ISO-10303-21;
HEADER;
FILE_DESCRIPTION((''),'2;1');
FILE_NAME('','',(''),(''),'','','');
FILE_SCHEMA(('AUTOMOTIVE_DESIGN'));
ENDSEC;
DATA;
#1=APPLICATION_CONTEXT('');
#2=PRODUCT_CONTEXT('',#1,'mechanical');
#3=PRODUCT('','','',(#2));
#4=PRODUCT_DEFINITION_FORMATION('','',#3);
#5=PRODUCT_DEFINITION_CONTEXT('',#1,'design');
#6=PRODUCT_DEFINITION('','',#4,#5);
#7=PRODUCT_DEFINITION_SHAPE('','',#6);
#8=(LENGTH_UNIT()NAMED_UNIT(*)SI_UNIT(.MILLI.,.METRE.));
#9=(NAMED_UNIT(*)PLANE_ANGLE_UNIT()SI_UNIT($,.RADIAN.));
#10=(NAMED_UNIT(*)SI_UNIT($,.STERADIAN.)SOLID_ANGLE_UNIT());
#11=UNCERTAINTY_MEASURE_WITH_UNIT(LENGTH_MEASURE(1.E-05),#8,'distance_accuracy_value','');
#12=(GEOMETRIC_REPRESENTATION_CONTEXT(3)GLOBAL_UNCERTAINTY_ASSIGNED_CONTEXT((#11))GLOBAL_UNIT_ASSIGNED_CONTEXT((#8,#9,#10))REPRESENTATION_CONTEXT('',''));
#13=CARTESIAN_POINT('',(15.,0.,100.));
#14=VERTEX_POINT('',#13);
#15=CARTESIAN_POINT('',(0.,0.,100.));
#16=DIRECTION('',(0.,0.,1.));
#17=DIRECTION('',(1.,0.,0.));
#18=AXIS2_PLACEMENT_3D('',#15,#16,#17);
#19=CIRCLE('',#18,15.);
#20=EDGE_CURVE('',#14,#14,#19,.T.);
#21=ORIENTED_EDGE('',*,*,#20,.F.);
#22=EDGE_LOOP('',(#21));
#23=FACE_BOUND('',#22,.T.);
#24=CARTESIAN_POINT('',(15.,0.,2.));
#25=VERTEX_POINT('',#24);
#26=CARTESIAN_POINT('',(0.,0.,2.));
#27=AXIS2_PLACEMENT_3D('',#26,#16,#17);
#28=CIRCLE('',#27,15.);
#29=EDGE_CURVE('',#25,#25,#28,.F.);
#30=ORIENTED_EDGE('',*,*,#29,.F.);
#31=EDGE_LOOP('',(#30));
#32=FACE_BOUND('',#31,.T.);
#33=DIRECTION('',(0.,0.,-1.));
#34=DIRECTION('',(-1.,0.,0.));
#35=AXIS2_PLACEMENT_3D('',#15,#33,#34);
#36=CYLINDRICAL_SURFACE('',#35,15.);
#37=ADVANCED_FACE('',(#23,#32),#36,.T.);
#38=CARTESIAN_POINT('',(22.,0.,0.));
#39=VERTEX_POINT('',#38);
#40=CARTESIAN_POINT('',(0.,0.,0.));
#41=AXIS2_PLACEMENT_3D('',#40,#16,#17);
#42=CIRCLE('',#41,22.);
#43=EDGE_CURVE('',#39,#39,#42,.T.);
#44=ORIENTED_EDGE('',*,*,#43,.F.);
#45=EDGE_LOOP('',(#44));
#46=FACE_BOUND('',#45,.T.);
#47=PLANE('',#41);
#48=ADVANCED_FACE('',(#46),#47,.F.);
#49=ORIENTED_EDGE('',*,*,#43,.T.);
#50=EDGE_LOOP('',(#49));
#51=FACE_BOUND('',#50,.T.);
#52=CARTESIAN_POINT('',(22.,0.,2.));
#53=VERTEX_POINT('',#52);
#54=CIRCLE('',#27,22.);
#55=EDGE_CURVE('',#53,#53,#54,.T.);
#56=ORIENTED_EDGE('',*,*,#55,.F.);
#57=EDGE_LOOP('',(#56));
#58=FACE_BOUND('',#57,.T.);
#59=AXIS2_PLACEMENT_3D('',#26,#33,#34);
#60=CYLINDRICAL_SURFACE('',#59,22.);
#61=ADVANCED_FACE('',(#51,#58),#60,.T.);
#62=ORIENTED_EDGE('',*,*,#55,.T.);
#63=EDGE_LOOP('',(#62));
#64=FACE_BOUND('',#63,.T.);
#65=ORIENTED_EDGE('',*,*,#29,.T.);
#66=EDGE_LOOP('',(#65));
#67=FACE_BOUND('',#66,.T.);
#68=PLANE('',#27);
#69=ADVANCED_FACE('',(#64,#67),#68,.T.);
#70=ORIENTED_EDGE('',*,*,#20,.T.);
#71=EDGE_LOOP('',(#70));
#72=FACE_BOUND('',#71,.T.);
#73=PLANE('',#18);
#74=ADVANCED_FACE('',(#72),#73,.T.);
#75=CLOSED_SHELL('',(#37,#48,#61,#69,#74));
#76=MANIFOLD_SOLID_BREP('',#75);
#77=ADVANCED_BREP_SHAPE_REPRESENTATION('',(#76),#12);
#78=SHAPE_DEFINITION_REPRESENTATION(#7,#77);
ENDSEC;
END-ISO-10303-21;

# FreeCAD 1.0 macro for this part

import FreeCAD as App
import Part
import Sketcher

V = App.Vector
Q = App.Units.Quantity

doc = App.newDocument("Part")
body = doc.addObject("PartDesign::Body", "Body")

sketch1 = doc.addObject("Sketcher::SketchObject", "Sketch")
body.addObject(sketch1)
sketch1.AttachmentSupport = (doc.XY_Plane, [""])
sketch1.MapMode = "FlatFace"
sketch1.addGeometry(Part.Circle(V(0, 0, 0), V(0, 0, 1), 22), False)
sketch1.addConstraint([
    Sketcher.Constraint("Coincident", 0, 3, -1, 1),
    Sketcher.Constraint("Diameter", 0, Q("44 mm")),
])
pad1 = doc.addObject("PartDesign::Pad", "Pad")
body.addObject(pad1)
pad1.Profile = sketch1
pad1.Length = 2

sketch2 = doc.addObject("Sketcher::SketchObject", "Sketch001")
body.addObject(sketch2)
sketch2.AttachmentSupport = (doc.XY_Plane, [""])
sketch2.MapMode = "FlatFace"
sketch2.addGeometry(Part.Circle(V(0, 0, 0), V(0, 0, 1), 15), False)
sketch2.addConstraint([
    Sketcher.Constraint("Coincident", 0, 3, -1, 1),
    Sketcher.Constraint("Diameter", 0, Q("30 mm")),
])
pad2 = doc.addObject("PartDesign::Pad", "Pad001")
body.addObject(pad2)
pad2.Profile = sketch2
pad2.Length = 100

doc.recompute()
